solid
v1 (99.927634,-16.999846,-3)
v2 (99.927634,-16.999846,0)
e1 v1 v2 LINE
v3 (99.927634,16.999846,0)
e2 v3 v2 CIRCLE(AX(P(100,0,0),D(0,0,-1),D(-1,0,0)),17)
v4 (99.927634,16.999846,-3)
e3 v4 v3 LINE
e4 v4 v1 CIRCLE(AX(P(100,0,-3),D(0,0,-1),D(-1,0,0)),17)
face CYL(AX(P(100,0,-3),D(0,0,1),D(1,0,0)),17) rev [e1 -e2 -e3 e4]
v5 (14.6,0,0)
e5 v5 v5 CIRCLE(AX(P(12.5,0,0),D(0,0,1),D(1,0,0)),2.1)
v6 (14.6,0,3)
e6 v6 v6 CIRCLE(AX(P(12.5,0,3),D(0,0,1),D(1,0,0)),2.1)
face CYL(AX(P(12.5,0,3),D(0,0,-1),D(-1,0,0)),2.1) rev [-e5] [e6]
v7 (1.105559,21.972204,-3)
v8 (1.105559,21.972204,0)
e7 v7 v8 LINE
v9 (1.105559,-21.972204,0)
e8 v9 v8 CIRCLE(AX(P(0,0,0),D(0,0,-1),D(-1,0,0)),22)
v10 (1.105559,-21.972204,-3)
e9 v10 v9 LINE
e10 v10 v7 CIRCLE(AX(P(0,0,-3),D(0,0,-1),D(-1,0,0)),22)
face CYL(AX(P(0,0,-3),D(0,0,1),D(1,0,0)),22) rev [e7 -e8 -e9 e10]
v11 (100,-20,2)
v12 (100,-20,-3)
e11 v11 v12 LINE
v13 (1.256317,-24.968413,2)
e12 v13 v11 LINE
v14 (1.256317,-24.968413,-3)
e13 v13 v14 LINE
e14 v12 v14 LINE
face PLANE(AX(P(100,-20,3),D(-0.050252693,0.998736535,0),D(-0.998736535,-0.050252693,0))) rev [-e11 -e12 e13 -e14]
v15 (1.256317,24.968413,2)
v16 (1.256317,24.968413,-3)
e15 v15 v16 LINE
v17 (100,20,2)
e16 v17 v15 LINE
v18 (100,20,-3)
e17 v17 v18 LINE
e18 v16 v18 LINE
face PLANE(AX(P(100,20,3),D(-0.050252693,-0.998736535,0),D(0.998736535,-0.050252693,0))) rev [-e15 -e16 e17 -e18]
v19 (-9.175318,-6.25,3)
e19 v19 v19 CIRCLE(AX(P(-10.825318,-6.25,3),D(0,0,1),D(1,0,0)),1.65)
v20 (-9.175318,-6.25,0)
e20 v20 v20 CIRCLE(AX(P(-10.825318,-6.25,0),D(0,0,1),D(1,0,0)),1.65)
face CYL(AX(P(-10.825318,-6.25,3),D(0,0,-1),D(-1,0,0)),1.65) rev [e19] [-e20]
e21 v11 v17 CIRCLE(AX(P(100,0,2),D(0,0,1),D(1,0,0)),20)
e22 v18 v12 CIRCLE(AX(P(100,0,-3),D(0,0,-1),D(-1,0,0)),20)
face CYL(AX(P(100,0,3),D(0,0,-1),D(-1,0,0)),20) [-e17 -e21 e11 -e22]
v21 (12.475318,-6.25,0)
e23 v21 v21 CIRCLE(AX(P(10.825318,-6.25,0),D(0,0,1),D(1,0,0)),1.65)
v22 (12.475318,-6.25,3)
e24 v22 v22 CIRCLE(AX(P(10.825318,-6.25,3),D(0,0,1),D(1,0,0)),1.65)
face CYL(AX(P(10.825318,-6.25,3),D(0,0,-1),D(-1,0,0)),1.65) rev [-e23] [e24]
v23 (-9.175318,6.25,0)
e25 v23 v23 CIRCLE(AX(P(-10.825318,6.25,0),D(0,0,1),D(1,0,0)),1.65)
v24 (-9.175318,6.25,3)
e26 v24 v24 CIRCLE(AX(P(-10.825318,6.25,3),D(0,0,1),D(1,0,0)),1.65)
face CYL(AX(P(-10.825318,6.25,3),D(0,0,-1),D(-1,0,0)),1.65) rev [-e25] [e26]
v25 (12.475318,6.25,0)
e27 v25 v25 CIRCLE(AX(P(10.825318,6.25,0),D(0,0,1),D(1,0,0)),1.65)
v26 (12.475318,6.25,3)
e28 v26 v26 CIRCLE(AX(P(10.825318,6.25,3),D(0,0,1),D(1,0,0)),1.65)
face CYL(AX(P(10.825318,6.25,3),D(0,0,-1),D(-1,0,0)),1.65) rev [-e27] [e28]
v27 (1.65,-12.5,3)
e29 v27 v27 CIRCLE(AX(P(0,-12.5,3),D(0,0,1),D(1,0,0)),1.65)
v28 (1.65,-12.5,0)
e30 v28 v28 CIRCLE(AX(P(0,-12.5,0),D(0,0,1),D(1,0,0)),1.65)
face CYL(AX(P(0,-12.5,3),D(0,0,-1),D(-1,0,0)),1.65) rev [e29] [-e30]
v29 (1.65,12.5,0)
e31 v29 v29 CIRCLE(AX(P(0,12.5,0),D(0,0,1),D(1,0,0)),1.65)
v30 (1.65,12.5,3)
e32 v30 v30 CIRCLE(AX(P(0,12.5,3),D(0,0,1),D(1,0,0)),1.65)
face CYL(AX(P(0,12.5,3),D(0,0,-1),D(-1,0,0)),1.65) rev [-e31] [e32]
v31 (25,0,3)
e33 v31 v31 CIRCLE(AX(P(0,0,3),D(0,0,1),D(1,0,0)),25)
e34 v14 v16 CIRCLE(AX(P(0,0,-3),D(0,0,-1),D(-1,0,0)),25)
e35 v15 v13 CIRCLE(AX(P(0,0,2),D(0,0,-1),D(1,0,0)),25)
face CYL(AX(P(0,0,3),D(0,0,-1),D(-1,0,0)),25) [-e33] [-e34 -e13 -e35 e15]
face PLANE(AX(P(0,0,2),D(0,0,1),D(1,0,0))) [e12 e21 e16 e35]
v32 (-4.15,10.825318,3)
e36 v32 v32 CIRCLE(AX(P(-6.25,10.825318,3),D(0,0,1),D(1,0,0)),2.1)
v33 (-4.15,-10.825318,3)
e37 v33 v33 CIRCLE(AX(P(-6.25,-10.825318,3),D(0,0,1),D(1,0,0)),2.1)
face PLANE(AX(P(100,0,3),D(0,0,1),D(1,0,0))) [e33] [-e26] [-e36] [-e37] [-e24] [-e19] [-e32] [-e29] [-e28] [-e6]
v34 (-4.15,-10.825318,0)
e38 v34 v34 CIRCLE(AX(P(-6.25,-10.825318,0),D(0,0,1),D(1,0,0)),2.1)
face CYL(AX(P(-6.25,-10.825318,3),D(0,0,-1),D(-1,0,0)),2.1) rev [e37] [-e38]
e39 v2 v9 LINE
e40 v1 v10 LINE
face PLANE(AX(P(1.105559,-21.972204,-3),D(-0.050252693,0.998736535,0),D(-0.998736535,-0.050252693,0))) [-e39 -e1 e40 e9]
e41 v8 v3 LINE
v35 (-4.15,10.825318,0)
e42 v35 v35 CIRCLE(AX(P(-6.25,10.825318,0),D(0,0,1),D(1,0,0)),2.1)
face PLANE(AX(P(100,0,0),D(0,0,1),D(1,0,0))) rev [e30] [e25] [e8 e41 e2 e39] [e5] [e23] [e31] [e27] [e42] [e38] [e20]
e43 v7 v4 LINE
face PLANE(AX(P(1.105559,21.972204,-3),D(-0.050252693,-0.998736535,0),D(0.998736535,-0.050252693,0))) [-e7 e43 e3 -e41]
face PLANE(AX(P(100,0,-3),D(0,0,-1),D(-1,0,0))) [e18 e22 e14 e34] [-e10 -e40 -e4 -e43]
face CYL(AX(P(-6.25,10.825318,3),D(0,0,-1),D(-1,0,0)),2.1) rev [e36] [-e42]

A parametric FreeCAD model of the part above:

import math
import FreeCAD as App
import Part
import Sketcher
Q = App.Units.Quantity

doc = App.newDocument("Part")
body = doc.addObject("PartDesign::Body", "Body")

sketch1 = doc.addObject("Sketcher::SketchObject", "Sketch")
body.addObject(sketch1)
sketch1.AttachmentSupport = (doc.XY_Plane, [""])
sketch1.MapMode = "FlatFace"
sketch1.addGeometry([
    Part.LineSegment(App.Vector(100, 20, 0), App.Vector(1.3, 25, 0)),
    Part.ArcOfCircle(Part.Circle(App.Vector(0, 0, 0), App.Vector(0, 0, 1), 25), math.radians(87), math.radians(273)),
    Part.LineSegment(App.Vector(1.3, -25, 0), App.Vector(100, -20, 0)),
    Part.ArcOfCircle(Part.Circle(App.Vector(100, 0, 0), App.Vector(0, 0, 1), 20), math.radians(-90), math.radians(90)),
    Part.Circle(App.Vector(-6.2, -10.8, 0), App.Vector(0, 0, 1), 2.1),
    Part.Circle(App.Vector(0, -12.5, 0), App.Vector(0, 0, 1), 1.6),
    Part.Circle(App.Vector(-10.8, -6.2, 0), App.Vector(0, 0, 1), 1.6),
    Part.Circle(App.Vector(10.8, -6.2, 0), App.Vector(0, 0, 1), 1.6),
    Part.Circle(App.Vector(-10.8, 6.2, 0), App.Vector(0, 0, 1), 1.6),
    Part.Circle(App.Vector(-6.2, 10.8, 0), App.Vector(0, 0, 1), 2.1),
    Part.Circle(App.Vector(0, 12.5, 0), App.Vector(0, 0, 1), 1.6),
    Part.Circle(App.Vector(12.5, 0, 0), App.Vector(0, 0, 1), 2.1),
    Part.Circle(App.Vector(10.8, 6.2, 0), App.Vector(0, 0, 1), 1.6),
], False)
sketch1.addConstraint([
    Sketcher.Constraint("Tangent", 0, 2, 1, 1),
    Sketcher.Constraint("Tangent", 1, 2, 2, 1),
    Sketcher.Constraint("Coincident", 2, 2, 3, 1),
    Sketcher.Constraint("Coincident", 3, 2, 0, 1),
    Sketcher.Constraint("Coincident", 1, 3, -1, 1),
    Sketcher.Constraint("Equal", 5, 6),
    Sketcher.Constraint("Equal", 6, 7),
    Sketcher.Constraint("Equal", 7, 8),
    Sketcher.Constraint("Equal", 4, 9),
    Sketcher.Constraint("Equal", 8, 10),
    Sketcher.Constraint("Equal", 9, 11),
    Sketcher.Constraint("Equal", 10, 12),
    Sketcher.Constraint("Symmetric", 7, 3, 8, 3, -1, 1),
    Sketcher.Constraint("Symmetric", 5, 3, 10, 3, -1, 1),
    Sketcher.Constraint("Symmetric", 6, 3, 12, 3, -1, 1),
    Sketcher.Constraint("Symmetric", 6, 3, 7, 3, -2),
    Sketcher.Constraint("Symmetric", 4, 3, 9, 3, -1),
    Sketcher.Constraint("Symmetric", 2, 2, 3, 2, -1),
    Sketcher.Constraint("PointOnObject", 5, 3, -2),
    Sketcher.Constraint("PointOnObject", 11, 3, -1),
    Sketcher.Constraint("Vertical", 3, 3, 2, 2),
    Sketcher.Constraint("Radius", 1, Q("25 mm")),
    Sketcher.Constraint("Radius", 3, Q("20 mm")),
    Sketcher.Constraint("Diameter", 4, Q("4.2 mm")),
    Sketcher.Constraint("Diameter", 5, Q("3.3 mm")),
    Sketcher.Constraint("DistanceX", -1, 1, 3, 3, Q("100 mm")),
    Sketcher.Constraint("DistanceY", 5, 3, -1, 1, Q("12.5 mm")),
    Sketcher.Constraint("DistanceX", -1, 1, 11, 3, Q("12.5 mm")),
    Sketcher.Constraint("DistanceY", 6, 3, 8, 3, Q("12.5 mm")),
    Sketcher.Constraint("DistanceX", 4, 3, -1, 1, Q("6.25 mm")),
    Sketcher.Constraint("DistanceX", 0, 2, 12, 3, Q("9.569 mm")),
    Sketcher.Constraint("DistanceY", 4, 3, -1, 1, Q("10.825318 mm")),
])
pad1 = doc.addObject("PartDesign::Pad", "Pad")
body.addObject(pad1)
pad1.Profile = sketch1
pad1.Length = 3

sketch2 = doc.addObject("Sketcher::SketchObject", "Sketch001")
body.addObject(sketch2)
sketch2.AttachmentSupport = (doc.XY_Plane, [""])
sketch2.MapMode = "FlatFace"
sketch2.AttachmentOffset = App.Placement(App.Vector(0, 0, 2), App.Rotation())
sketch2.addGeometry([
    Part.LineSegment(App.Vector(0, -25, 0), App.Vector(16, -41, 0)),
    Part.LineSegment(App.Vector(16, -41, 0), App.Vector(118, -38, 0)),
    Part.LineSegment(App.Vector(118, -38, 0), App.Vector(136, 2, 0)),
    Part.LineSegment(App.Vector(136, 2, 0), App.Vector(127, 31, 0)),
    Part.LineSegment(App.Vector(127, 31, 0), App.Vector(20, 36, 0)),
    Part.LineSegment(App.Vector(20, 36, 0), App.Vector(0, 25, 0)),
    Part.ArcOfCircle(Part.Circle(App.Vector(0, 0, 0), App.Vector(0, 0, 1), 25), math.radians(-90), math.radians(90)),
], False)
sketch2.addConstraint([
    Sketcher.Constraint("Coincident", 0, 2, 1, 1),
    Sketcher.Constraint("Coincident", 1, 2, 2, 1),
    Sketcher.Constraint("Coincident", 2, 2, 3, 1),
    Sketcher.Constraint("Coincident", 3, 2, 4, 1),
    Sketcher.Constraint("Coincident", 4, 2, 5, 1),
    Sketcher.Constraint("Coincident", 5, 2, 6, 2),
    Sketcher.Constraint("Coincident", 6, 1, 0, 1),
    Sketcher.Constraint("Coincident", 6, 3, -1, 1),
    Sketcher.Constraint("PointOnObject", 5, 2, -2),
    Sketcher.Constraint("PointOnObject", 6, 1, -2),
    Sketcher.Constraint("Radius", 6, Q("25 mm")),
    Sketcher.Constraint("Distance", 1, Q("101.9436 mm")),
    Sketcher.Constraint("DistanceY", 0, 2, 3, 2, Q("72.400099 mm")),
    Sketcher.Constraint("Distance", 3, Q("30.140739 mm")),
    Sketcher.Constraint("DistanceX", -1, 1, 2, 2, Q("135.744179 mm")),
    Sketcher.Constraint("DistanceY", -1, 1, 2, 2, Q("2.203481 mm")),
    Sketcher.Constraint("DistanceX", -1, 1, 3, 2, Q("127.035182 mm")),
    Sketcher.Constraint("DistanceX", 0, 2, 4, 2, Q("3.14783 mm")),
    Sketcher.Constraint("DistanceY", 0, 2, 4, 2, Q("77.436628 mm")),
    Sketcher.Constraint("Distance", 0, Q("23.181127 mm")),
    Sketcher.Constraint("Distance", 2, Q("43.703355 mm")),
])
pocket1 = doc.addObject("PartDesign::Pocket", "Pocket")
body.addObject(pocket1)
pocket1.Profile = sketch2
pocket1.Length = 1
pocket1.Reversed = True

sketch3 = doc.addObject("Sketcher::SketchObject", "Sketch002")
body.addObject(sketch3)
sketch3.AttachmentSupport = (doc.XY_Plane, [""])
sketch3.MapMode = "FlatFace"
sketch3.AttachmentOffset = App.Placement(App.Vector(0, 0, -3), App.Rotation())
sketch3.addGeometry([
    Part.LineSegment(App.Vector(100, -20, 0), App.Vector(1, -25, 0)),
    Part.ArcOfCircle(Part.Circle(App.Vector(0, 0, 0), App.Vector(0, 0, 1), 25), math.radians(87), math.radians(273)),
    Part.LineSegment(App.Vector(1, 25, 0), App.Vector(100, 20, 0)),
    Part.ArcOfCircle(Part.Circle(App.Vector(100, 0, 0), App.Vector(0, 0, 1), 20), math.radians(-90), math.radians(90)),
    Part.LineSegment(App.Vector(100, 17, 0), App.Vector(1, 22, 0)),
    Part.ArcOfCircle(Part.Circle(App.Vector(0, 0, 0), App.Vector(0, 0, 1), 22), math.radians(87), math.radians(273)),
    Part.LineSegment(App.Vector(1, -22, 0), App.Vector(100, -17, 0)),
    Part.ArcOfCircle(Part.Circle(App.Vector(100, 0, 0), App.Vector(0, 0, 1), 17), math.radians(-90), math.radians(90)),
], False)
sketch3.addConstraint([
    Sketcher.Constraint("Tangent", 0, 2, 1, 2),
    Sketcher.Constraint("Tangent", 1, 1, 2, 1),
    Sketcher.Constraint("Coincident", 2, 2, 3, 2),
    Sketcher.Constraint("Coincident", 3, 1, 0, 1),
    Sketcher.Constraint("Tangent", 4, 2, 5, 1),
    Sketcher.Constraint("Tangent", 5, 2, 6, 1),
    Sketcher.Constraint("Coincident", 6, 2, 7, 1),
    Sketcher.Constraint("Coincident", 7, 2, 4, 1),
    Sketcher.Constraint("Coincident", 1, 3, -1, 1),
    Sketcher.Constraint("Coincident", 5, 3, -1, 1),
    Sketcher.Constraint("Coincident", 7, 3, 3, 3),
    Sketcher.Constraint("Symmetric", 2, 2, 3, 1, -1),
    Sketcher.Constraint("Parallel", 2, 4),
    Sketcher.Constraint("Parallel", 0, 6),
    Sketcher.Constraint("Vertical", 7, 3, 2, 2),
    Sketcher.Constraint("Radius", 1, Q("25 mm")),
    Sketcher.Constraint("Radius", 3, Q("20 mm")),
    Sketcher.Constraint("Radius", 5, Q("22 mm")),
    Sketcher.Constraint("Radius", 7, Q("17 mm")),
    Sketcher.Constraint("DistanceX", -1, 1, 3, 3, Q("100 mm")),
])
pad2 = doc.addObject("PartDesign::Pad", "Pad001")
body.addObject(pad2)
pad2.Profile = sketch3
pad2.Length = 3

doc.recompute()
